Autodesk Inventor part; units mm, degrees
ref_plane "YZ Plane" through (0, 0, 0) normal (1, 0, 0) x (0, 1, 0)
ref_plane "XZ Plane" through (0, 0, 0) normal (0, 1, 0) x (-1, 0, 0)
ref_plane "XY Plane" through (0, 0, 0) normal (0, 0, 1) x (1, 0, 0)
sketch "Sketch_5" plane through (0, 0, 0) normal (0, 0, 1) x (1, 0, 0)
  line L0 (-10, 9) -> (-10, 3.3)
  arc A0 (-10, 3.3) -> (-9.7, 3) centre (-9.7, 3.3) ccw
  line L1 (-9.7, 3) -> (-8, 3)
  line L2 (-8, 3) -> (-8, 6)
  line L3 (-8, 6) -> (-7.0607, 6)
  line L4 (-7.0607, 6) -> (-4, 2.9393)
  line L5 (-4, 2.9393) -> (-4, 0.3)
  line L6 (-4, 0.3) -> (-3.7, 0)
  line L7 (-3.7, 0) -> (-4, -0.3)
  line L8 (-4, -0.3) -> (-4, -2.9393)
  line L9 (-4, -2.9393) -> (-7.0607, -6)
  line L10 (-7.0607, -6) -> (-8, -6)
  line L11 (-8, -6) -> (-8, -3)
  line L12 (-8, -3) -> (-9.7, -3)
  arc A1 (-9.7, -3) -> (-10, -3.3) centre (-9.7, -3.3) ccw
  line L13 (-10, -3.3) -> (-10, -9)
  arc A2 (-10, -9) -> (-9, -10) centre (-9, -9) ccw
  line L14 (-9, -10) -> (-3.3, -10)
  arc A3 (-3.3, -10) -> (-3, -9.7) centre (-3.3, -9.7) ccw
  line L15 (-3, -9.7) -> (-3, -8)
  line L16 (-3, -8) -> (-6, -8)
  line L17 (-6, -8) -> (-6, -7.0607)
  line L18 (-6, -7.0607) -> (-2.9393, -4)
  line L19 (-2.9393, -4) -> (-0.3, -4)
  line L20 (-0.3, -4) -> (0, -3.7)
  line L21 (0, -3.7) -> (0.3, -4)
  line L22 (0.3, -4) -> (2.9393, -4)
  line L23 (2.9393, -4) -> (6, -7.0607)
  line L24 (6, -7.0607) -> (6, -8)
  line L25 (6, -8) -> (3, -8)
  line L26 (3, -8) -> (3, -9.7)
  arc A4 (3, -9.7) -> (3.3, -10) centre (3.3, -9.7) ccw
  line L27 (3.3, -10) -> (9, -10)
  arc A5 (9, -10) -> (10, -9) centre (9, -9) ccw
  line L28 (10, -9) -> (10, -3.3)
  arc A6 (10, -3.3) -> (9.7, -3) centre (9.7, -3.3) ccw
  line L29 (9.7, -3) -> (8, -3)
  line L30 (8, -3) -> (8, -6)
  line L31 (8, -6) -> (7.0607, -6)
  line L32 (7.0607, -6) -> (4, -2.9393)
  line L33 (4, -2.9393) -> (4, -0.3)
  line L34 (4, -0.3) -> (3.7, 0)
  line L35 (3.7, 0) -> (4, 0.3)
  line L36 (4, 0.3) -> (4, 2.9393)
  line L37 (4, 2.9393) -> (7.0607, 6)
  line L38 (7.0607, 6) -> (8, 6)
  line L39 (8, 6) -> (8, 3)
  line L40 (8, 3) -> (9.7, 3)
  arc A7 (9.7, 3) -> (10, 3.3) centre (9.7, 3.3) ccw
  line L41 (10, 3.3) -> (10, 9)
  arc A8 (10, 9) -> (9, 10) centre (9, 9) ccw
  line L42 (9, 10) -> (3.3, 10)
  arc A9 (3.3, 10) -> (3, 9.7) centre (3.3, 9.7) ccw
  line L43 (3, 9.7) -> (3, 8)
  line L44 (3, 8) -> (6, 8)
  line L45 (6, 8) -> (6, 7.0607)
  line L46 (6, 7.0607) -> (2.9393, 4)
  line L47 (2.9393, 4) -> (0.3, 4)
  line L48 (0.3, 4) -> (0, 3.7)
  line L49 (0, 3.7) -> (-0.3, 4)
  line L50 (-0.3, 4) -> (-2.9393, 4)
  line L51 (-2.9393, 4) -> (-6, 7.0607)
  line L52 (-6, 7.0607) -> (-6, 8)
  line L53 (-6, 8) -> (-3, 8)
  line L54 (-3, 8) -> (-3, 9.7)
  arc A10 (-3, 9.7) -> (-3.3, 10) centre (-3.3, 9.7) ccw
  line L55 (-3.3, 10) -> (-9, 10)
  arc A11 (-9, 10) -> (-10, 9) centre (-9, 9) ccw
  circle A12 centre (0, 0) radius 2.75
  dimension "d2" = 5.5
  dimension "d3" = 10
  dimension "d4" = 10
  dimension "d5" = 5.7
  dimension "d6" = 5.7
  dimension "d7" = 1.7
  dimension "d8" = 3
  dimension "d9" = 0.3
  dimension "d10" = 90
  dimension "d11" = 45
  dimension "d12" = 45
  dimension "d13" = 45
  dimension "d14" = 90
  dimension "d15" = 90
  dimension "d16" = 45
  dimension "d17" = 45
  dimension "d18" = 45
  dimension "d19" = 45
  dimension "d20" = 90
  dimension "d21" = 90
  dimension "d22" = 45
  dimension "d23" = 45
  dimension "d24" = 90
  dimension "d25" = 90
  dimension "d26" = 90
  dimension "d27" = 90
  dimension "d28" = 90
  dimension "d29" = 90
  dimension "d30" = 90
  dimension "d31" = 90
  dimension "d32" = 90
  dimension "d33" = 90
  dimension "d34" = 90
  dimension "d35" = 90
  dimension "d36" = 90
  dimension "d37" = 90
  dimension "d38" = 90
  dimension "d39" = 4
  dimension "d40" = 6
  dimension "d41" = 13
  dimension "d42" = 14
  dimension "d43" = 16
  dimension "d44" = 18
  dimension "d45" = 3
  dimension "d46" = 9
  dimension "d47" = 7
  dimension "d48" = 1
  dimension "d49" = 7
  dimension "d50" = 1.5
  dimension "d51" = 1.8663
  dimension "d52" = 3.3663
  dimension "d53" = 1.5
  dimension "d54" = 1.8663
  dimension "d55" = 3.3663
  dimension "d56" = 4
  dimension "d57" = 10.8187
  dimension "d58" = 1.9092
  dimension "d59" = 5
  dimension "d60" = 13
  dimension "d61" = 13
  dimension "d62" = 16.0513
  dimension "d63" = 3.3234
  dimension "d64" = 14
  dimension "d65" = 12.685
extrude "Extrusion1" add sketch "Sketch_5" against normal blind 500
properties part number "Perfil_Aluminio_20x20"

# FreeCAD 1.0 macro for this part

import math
import FreeCAD as App
import Part
import Sketcher

V = App.Vector
Q = App.Units.Quantity

doc = App.newDocument("Part")
params = doc.addObject("Spreadsheet::Sheet", "Params")
for row, (alias, value) in enumerate([
    ("sketch1_radius", "1 mm"),
    ("sketch1_diameter", "5.5 mm"),
    ("sketch1_radius2", "0.3 mm"),
    ("sketch1_width", "3 mm"),
    ("sketch1_width2", "1.7 mm"),
    ("pad1_length", "500 mm"),
], start=1):
    params.set(f"A{row}", alias)
    params.set(f"B{row}", "=" + value)
    params.setAlias(f"B{row}", alias)

body = doc.addObject("PartDesign::Body", "Body")

# Sketch on XY plane
sketch1 = doc.addObject("Sketcher::SketchObject", "Sketch")
body.addObject(sketch1)
sketch1.AttachmentSupport = (doc.XY_Plane, [""])
sketch1.MapMode = "FlatFace"
sketch1.addGeometry([
    Part.ArcOfCircle(Part.Circle(V(-9, 9, 0), V(0, 0, 1), 1), math.radians(90), math.radians(180)),  # 0
    Part.LineSegment(V(-10, 9, 0), V(-10, 3.3, 0)),  # 1
    Part.ArcOfCircle(Part.Circle(V(-9.7, 3.3, 0), V(0, 0, 1), 0.3), math.radians(180), math.radians(270)),  # 2
    Part.LineSegment(V(-9.7, 3, 0), V(-8, 3, 0)),  # 3
    Part.LineSegment(V(-8, 3, 0), V(-8, 6, 0)),  # 4
    Part.LineSegment(V(-8, 6, 0), V(-7.06, 6, 0)),  # 5
    Part.LineSegment(V(-7.06, 6, 0), V(-4, 2.94, 0)),  # 6
    Part.LineSegment(V(-4, 2.94, 0), V(-4, 0.3, 0)),  # 7
    Part.LineSegment(V(-4, 0.3, 0), V(-3.7, 0, 0)),  # 8
    Part.LineSegment(V(-3.7, 0, 0), V(-4, -0.3, 0)),  # 9
    Part.LineSegment(V(-4, -0.3, 0), V(-4, -2.94, 0)),  # 10
    Part.LineSegment(V(-4, -2.94, 0), V(-7.06, -6, 0)),  # 11
    Part.LineSegment(V(-7.06, -6, 0), V(-8, -6, 0)),  # 12
    Part.LineSegment(V(-8, -6, 0), V(-8, -3, 0)),  # 13
    Part.LineSegment(V(-8, -3, 0), V(-9.7, -3, 0)),  # 14
    Part.ArcOfCircle(Part.Circle(V(-9.7, -3.3, 0), V(0, 0, 1), 0.3), math.radians(90), math.radians(180)),  # 15
    Part.LineSegment(V(-10, -3.3, 0), V(-10, -9, 0)),  # 16
    Part.ArcOfCircle(Part.Circle(V(-9, -9, 0), V(0, 0, 1), 1), math.radians(180), math.radians(270)),  # 17
    Part.LineSegment(V(-9, -10, 0), V(-3.3, -10, 0)),  # 18
    Part.ArcOfCircle(Part.Circle(V(-3.3, -9.7, 0), V(0, 0, 1), 0.3), math.radians(-90), math.radians(0)),  # 19
    Part.LineSegment(V(-3, -9.7, 0), V(-3, -8, 0)),  # 20
    Part.LineSegment(V(-3, -8, 0), V(-6, -8, 0)),  # 21
    Part.LineSegment(V(-6, -8, 0), V(-6, -7.06, 0)),  # 22
    Part.LineSegment(V(-6, -7.06, 0), V(-2.94, -4, 0)),  # 23
    Part.LineSegment(V(-2.94, -4, 0), V(-0.3, -4, 0)),  # 24
    Part.LineSegment(V(-0.3, -4, 0), V(0, -3.7, 0)),  # 25
    Part.LineSegment(V(0, -3.7, 0), V(0.3, -4, 0)),  # 26
    Part.LineSegment(V(0.3, -4, 0), V(2.94, -4, 0)),  # 27
    Part.LineSegment(V(2.94, -4, 0), V(6, -7.06, 0)),  # 28
    Part.LineSegment(V(6, -7.06, 0), V(6, -8, 0)),  # 29
    Part.LineSegment(V(6, -8, 0), V(3, -8, 0)),  # 30
    Part.LineSegment(V(3, -8, 0), V(3, -9.7, 0)),  # 31
    Part.ArcOfCircle(Part.Circle(V(3.3, -9.7, 0), V(0, 0, 1), 0.3), math.radians(180), math.radians(270)),  # 32
    Part.LineSegment(V(3.3, -10, 0), V(9, -10, 0)),  # 33
    Part.ArcOfCircle(Part.Circle(V(9, -9, 0), V(0, 0, 1), 1), math.radians(-90), math.radians(0)),  # 34
    Part.LineSegment(V(10, -9, 0), V(10, -3.3, 0)),  # 35
    Part.ArcOfCircle(Part.Circle(V(9.7, -3.3, 0), V(0, 0, 1), 0.3), math.radians(0), math.radians(90)),  # 36
    Part.LineSegment(V(9.7, -3, 0), V(8, -3, 0)),  # 37
    Part.LineSegment(V(8, -3, 0), V(8, -6, 0)),  # 38
    Part.LineSegment(V(8, -6, 0), V(7.06, -6, 0)),  # 39
    Part.LineSegment(V(7.06, -6, 0), V(4, -2.94, 0)),  # 40
    Part.LineSegment(V(4, -2.94, 0), V(4, -0.3, 0)),  # 41
    Part.LineSegment(V(4, -0.3, 0), V(3.7, 0, 0)),  # 42
    Part.LineSegment(V(3.7, 0, 0), V(4, 0.3, 0)),  # 43
    Part.LineSegment(V(4, 0.3, 0), V(4, 2.94, 0)),  # 44
    Part.LineSegment(V(4, 2.94, 0), V(7.06, 6, 0)),  # 45
    Part.LineSegment(V(7.06, 6, 0), V(8, 6, 0)),  # 46
    Part.LineSegment(V(8, 6, 0), V(8, 3, 0)),  # 47
    Part.LineSegment(V(8, 3, 0), V(9.7, 3, 0)),  # 48
    Part.ArcOfCircle(Part.Circle(V(9.7, 3.3, 0), V(0, 0, 1), 0.3), math.radians(-90), math.radians(0)),  # 49
    Part.LineSegment(V(10, 3.3, 0), V(10, 9, 0)),  # 50
    Part.ArcOfCircle(Part.Circle(V(9, 9, 0), V(0, 0, 1), 1), math.radians(0), math.radians(90)),  # 51
    Part.LineSegment(V(9, 10, 0), V(3.3, 10, 0)),  # 52
    Part.ArcOfCircle(Part.Circle(V(3.3, 9.7, 0), V(0, 0, 1), 0.3), math.radians(90), math.radians(180)),  # 53
    Part.LineSegment(V(3, 9.7, 0), V(3, 8, 0)),  # 54
    Part.LineSegment(V(3, 8, 0), V(6, 8, 0)),  # 55
    Part.LineSegment(V(6, 8, 0), V(6, 7.06, 0)),  # 56
    Part.LineSegment(V(6, 7.06, 0), V(2.94, 4, 0)),  # 57
    Part.LineSegment(V(2.94, 4, 0), V(0.3, 4, 0)),  # 58
    Part.LineSegment(V(0.3, 4, 0), V(0, 3.7, 0)),  # 59
    Part.LineSegment(V(0, 3.7, 0), V(-0.3, 4, 0)),  # 60
    Part.LineSegment(V(-0.3, 4, 0), V(-2.94, 4, 0)),  # 61
    Part.LineSegment(V(-2.94, 4, 0), V(-6, 7.06, 0)),  # 62
    Part.LineSegment(V(-6, 7.06, 0), V(-6, 8, 0)),  # 63
    Part.LineSegment(V(-6, 8, 0), V(-3, 8, 0)),  # 64
    Part.LineSegment(V(-3, 8, 0), V(-3, 9.7, 0)),  # 65
    Part.ArcOfCircle(Part.Circle(V(-3.3, 9.7, 0), V(0, 0, 1), 0.3), math.radians(0), math.radians(90)),  # 66
    Part.LineSegment(V(-3.3, 10, 0), V(-9, 10, 0)),  # 67
    Part.Circle(V(0, 0, 0), V(0, 0, 1), 2.75),  # 68
], False)
sketch1.addConstraint([
    Sketcher.Constraint("Tangent", 0, 2, 1, 1),
    Sketcher.Constraint("Tangent", 1, 2, 2, 1),
    Sketcher.Constraint("Tangent", 2, 2, 3, 1),
    Sketcher.Constraint("Coincident", 3, 2, 4, 1),
    Sketcher.Constraint("Coincident", 4, 2, 5, 1),
    Sketcher.Constraint("Coincident", 5, 2, 6, 1),
    Sketcher.Constraint("Coincident", 6, 2, 7, 1),
    Sketcher.Constraint("Coincident", 7, 2, 8, 1),
    Sketcher.Constraint("Coincident", 8, 2, 9, 1),
    Sketcher.Constraint("Coincident", 9, 2, 10, 1),
    Sketcher.Constraint("Coincident", 10, 2, 11, 1),
    Sketcher.Constraint("Coincident", 11, 2, 12, 1),
    Sketcher.Constraint("Coincident", 12, 2, 13, 1),
    Sketcher.Constraint("Coincident", 13, 2, 14, 1),
    Sketcher.Constraint("Tangent", 14, 2, 15, 1),
    Sketcher.Constraint("Tangent", 15, 2, 16, 1),
    Sketcher.Constraint("Tangent", 16, 2, 17, 1),
    Sketcher.Constraint("Tangent", 17, 2, 18, 1),
    Sketcher.Constraint("Tangent", 18, 2, 19, 1),
    Sketcher.Constraint("Tangent", 19, 2, 20, 1),
    Sketcher.Constraint("Coincident", 20, 2, 21, 1),
    Sketcher.Constraint("Coincident", 21, 2, 22, 1),
    Sketcher.Constraint("Coincident", 22, 2, 23, 1),
    Sketcher.Constraint("Coincident", 23, 2, 24, 1),
    Sketcher.Constraint("Coincident", 24, 2, 25, 1),
    Sketcher.Constraint("Coincident", 25, 2, 26, 1),
    Sketcher.Constraint("Coincident", 26, 2, 27, 1),
    Sketcher.Constraint("Coincident", 27, 2, 28, 1),
    Sketcher.Constraint("Coincident", 28, 2, 29, 1),
    Sketcher.Constraint("Coincident", 29, 2, 30, 1),
    Sketcher.Constraint("Coincident", 30, 2, 31, 1),
    Sketcher.Constraint("Tangent", 31, 2, 32, 1),
    Sketcher.Constraint("Tangent", 32, 2, 33, 1),
    Sketcher.Constraint("Tangent", 33, 2, 34, 1),
    Sketcher.Constraint("Tangent", 34, 2, 35, 1),
    Sketcher.Constraint("Tangent", 35, 2, 36, 1),
    Sketcher.Constraint("Tangent", 36, 2, 37, 1),
    Sketcher.Constraint("Coincident", 37, 2, 38, 1),
    Sketcher.Constraint("Coincident", 38, 2, 39, 1),
    Sketcher.Constraint("Coincident", 39, 2, 40, 1),
    Sketcher.Constraint("Coincident", 40, 2, 41, 1),
    Sketcher.Constraint("Coincident", 41, 2, 42, 1),
    Sketcher.Constraint("Coincident", 42, 2, 43, 1),
    Sketcher.Constraint("Coincident", 43, 2, 44, 1),
    Sketcher.Constraint("Coincident", 44, 2, 45, 1),
    Sketcher.Constraint("Coincident", 45, 2, 46, 1),
    Sketcher.Constraint("Coincident", 46, 2, 47, 1),
    Sketcher.Constraint("Coincident", 47, 2, 48, 1),
    Sketcher.Constraint("Tangent", 48, 2, 49, 1),
    Sketcher.Constraint("Tangent", 49, 2, 50, 1),
    Sketcher.Constraint("Tangent", 50, 2, 51, 1),
    Sketcher.Constraint("Tangent", 51, 2, 52, 1),
    Sketcher.Constraint("Tangent", 52, 2, 53, 1),
    Sketcher.Constraint("Tangent", 53, 2, 54, 1),
    Sketcher.Constraint("Coincident", 54, 2, 55, 1),
    Sketcher.Constraint("Coincident", 55, 2, 56, 1),
    Sketcher.Constraint("Coincident", 56, 2, 57, 1),
    Sketcher.Constraint("Coincident", 57, 2, 58, 1),
    Sketcher.Constraint("Coincident", 58, 2, 59, 1),
    Sketcher.Constraint("Coincident", 59, 2, 60, 1),
    Sketcher.Constraint("Coincident", 60, 2, 61, 1),
    Sketcher.Constraint("Coincident", 61, 2, 62, 1),
    Sketcher.Constraint("Coincident", 62, 2, 63, 1),
    Sketcher.Constraint("Coincident", 63, 2, 64, 1),
    Sketcher.Constraint("Coincident", 64, 2, 65, 1),
    Sketcher.Constraint("Tangent", 65, 2, 66, 1),
    Sketcher.Constraint("Tangent", 66, 2, 67, 1),
    Sketcher.Constraint("Tangent", 67, 2, 0, 1),
    Sketcher.Constraint("Vertical", 1),
    Sketcher.Constraint("Horizontal", 3),
    Sketcher.Constraint("Vertical", 4),
    Sketcher.Constraint("Horizontal", 5),
    Sketcher.Constraint("Vertical", 7),
    Sketcher.Constraint("Vertical", 10),
    Sketcher.Constraint("Horizontal", 12),
    Sketcher.Constraint("Vertical", 13),
    Sketcher.Constraint("Horizontal", 14),
    Sketcher.Constraint("Vertical", 16),
    Sketcher.Constraint("Horizontal", 18),
    Sketcher.Constraint("Vertical", 20),
    Sketcher.Constraint("Horizontal", 21),
    Sketcher.Constraint("Vertical", 22),
    Sketcher.Constraint("Horizontal", 24),
    Sketcher.Constraint("Horizontal", 27),
    Sketcher.Constraint("Vertical", 29),
    Sketcher.Constraint("Horizontal", 30),
    Sketcher.Constraint("Vertical", 31),
    Sketcher.Constraint("Horizontal", 33),
    Sketcher.Constraint("Vertical", 35),
    Sketcher.Constraint("Horizontal", 37),
    Sketcher.Constraint("Vertical", 38),
    Sketcher.Constraint("Horizontal", 39),
    Sketcher.Constraint("Vertical", 41),
    Sketcher.Constraint("Vertical", 44),
    Sketcher.Constraint("Horizontal", 46),
    Sketcher.Constraint("Vertical", 47),
    Sketcher.Constraint("Horizontal", 48),
    Sketcher.Constraint("Vertical", 50),
    Sketcher.Constraint("Horizontal", 52),
    Sketcher.Constraint("Vertical", 54),
    Sketcher.Constraint("Horizontal", 55),
    Sketcher.Constraint("Vertical", 56),
    Sketcher.Constraint("Horizontal", 58),
    Sketcher.Constraint("Horizontal", 61),
    Sketcher.Constraint("Vertical", 63),
    Sketcher.Constraint("Horizontal", 64),
    Sketcher.Constraint("Vertical", 65),
    Sketcher.Constraint("Horizontal", 67),
    Sketcher.Constraint("Coincident", 68, 3, -1, 1),
    Sketcher.Constraint("Equal", 2, 15),
    Sketcher.Constraint("Equal", 0, 17),
    Sketcher.Constraint("Equal", 15, 19),
    Sketcher.Constraint("Equal", 19, 32),
    Sketcher.Constraint("Equal", 17, 34),
    Sketcher.Constraint("Equal", 32, 36),
    Sketcher.Constraint("Equal", 36, 49),
    Sketcher.Constraint("Equal", 34, 51),
    Sketcher.Constraint("Equal", 49, 53),
    Sketcher.Constraint("Equal", 53, 66),
    Sketcher.Constraint("Symmetric", 0, 3, 34, 3, -1, 1),
    Sketcher.Constraint("Symmetric", 15, 3, 49, 3, -1, 1),
    Sketcher.Constraint("Symmetric", 19, 3, 53, 3, -1, 1),
    Sketcher.Constraint("Symmetric", 3, 2, 37, 2, -1, 1),
    Sketcher.Constraint("Symmetric", 5, 2, 39, 2, -1, 1),
    Sketcher.Constraint("Symmetric", 6, 2, 40, 2, -1, 1),
    Sketcher.Constraint("Symmetric", 8, 2, 42, 2, -1, 1),
    Sketcher.Constraint("Symmetric", 9, 2, 43, 2, -1, 1),
    Sketcher.Constraint("Symmetric", 11, 2, 45, 2, -1, 1),
    Sketcher.Constraint("Symmetric", 21, 2, 55, 2, -1, 1),
    Sketcher.Constraint("Symmetric", 23, 2, 57, 2, -1, 1),
    Sketcher.Constraint("Symmetric", 25, 2, 59, 2, -1, 1),
    Sketcher.Constraint("Symmetric", 26, 2, 60, 2, -1, 1),
    Sketcher.Constraint("Symmetric", 28, 2, 62, 2, -1, 1),
    Sketcher.Constraint("Symmetric", 30, 2, 64, 2, -1, 1),
    Sketcher.Constraint("Symmetric", 19, 3, 32, 3, -2),
    Sketcher.Constraint("Symmetric", 15, 3, 36, 3, -2),
    Sketcher.Constraint("Symmetric", 24, 2, 26, 2, -2),
    Sketcher.Constraint("Symmetric", 22, 2, 28, 2, -2),
    Sketcher.Constraint("Symmetric", 12, 2, 38, 2, -2),
    Sketcher.Constraint("Symmetric", 10, 2, 40, 2, -2),
    Sketcher.Constraint("PointOnObject", 8, 2, -1),
    Sketcher.Constraint("PointOnObject", 25, 2, -2),
    Sketcher.Constraint("Parallel", 6, 8),
    Sketcher.Constraint("Perpendicular", 8, 9),
    Sketcher.Constraint("Parallel", 9, 11),
    Sketcher.Constraint("Parallel", 11, 23),
    Sketcher.Constraint("Parallel", 23, 25),
    Sketcher.Constraint("Perpendicular", 25, 26),
    Sketcher.Constraint("Parallel", 26, 28),
    Sketcher.Constraint("Parallel", 40, 42),
    Sketcher.Constraint("Parallel", 43, 45),
    Sketcher.Constraint("Parallel", 45, 57),
    Sketcher.Constraint("Parallel", 57, 59),
    Sketcher.Constraint("Parallel", 60, 62),
    Sketcher.Constraint("Horizontal", 21, 2, 29, 2),
    Sketcher.Constraint("Vertical", 38, 2, 46, 2),
    Sketcher.Constraint("Equal", 67, 1),
    Sketcher.Constraint("Equal", 64, 4),
    Sketcher.Constraint("Equal", 61, 7),
    Sketcher.Constraint("Equal", 48, 20),
    Sketcher.Constraint("Equal", 46, 22),
    Sketcher.Constraint("Equal", 11, 23),
    Sketcher.Constraint("Equal", 9, 25),
    Sketcher.Constraint("Radius", 0, Q("1 mm")),
    Sketcher.Constraint("Diameter", 68, Q("5.5 mm")),
    Sketcher.Constraint("Radius", 2, Q("0.3 mm")),
    Sketcher.Constraint("DistanceX", 21, 2, 21, 1, Q("3 mm")),
    Sketcher.Constraint("DistanceX", 3, 1, 3, 2, Q("1.7 mm")),
    Sketcher.Constraint("DistanceX", 18, 1, 18, 2, Q("5.7 mm")),
    Sketcher.Constraint("DistanceX", 0, 3, -1, 1, Q("9 mm")),
    Sketcher.Constraint("DistanceX", 6, 2, -1, 1, Q("4 mm")),
    Sketcher.Constraint("DistanceY", -1, 1, 7, 2, Q("0.3 mm")),
    Sketcher.Constraint("DistanceX", 5, 1, 5, 2, Q("0.9393 mm")),
])
sketch1.setExpression("Constraints[163]", "Params.sketch1_radius")
sketch1.setExpression("Constraints[164]", "Params.sketch1_diameter")
sketch1.setExpression("Constraints[165]", "Params.sketch1_radius2")
sketch1.setExpression("Constraints[166]", "Params.sketch1_width")
sketch1.setExpression("Constraints[167]", "Params.sketch1_width2")
pad1 = doc.addObject("PartDesign::Pad", "Pad")
body.addObject(pad1)
pad1.Profile = sketch1
pad1.setExpression("Length", "Params.pad1_length")
pad1.Reversed = True

doc.recompute()
